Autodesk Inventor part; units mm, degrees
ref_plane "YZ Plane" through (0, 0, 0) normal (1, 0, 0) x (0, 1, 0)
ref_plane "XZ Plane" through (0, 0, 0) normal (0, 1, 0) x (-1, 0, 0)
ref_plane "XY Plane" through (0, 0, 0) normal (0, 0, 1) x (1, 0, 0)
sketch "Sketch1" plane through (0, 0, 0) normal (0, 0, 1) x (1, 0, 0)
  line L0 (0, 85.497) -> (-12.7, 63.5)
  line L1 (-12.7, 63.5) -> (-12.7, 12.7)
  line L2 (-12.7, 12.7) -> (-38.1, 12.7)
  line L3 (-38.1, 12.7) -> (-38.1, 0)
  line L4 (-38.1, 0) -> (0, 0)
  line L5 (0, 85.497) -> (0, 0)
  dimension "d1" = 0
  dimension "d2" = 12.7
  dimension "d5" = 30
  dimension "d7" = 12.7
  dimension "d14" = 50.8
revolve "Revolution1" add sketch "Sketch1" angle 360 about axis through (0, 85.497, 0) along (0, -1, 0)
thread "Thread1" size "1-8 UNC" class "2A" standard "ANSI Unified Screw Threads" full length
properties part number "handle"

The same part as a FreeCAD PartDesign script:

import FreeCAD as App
import Part
import Sketcher
from FreeCAD import Vector
Q = App.Units.Quantity

doc = App.newDocument("Part")
params = doc.addObject("Spreadsheet::Sheet", "Params")
for row, (alias, value) in enumerate([
    ("sketch1_height", "2 in"),
    ("sketch1_height2", "0.5 in"),
    ("sketch1_width", "1 in"),
    ("sketch1_length", "1 in"),
    ("revolution_angle", "360 deg"),
], start=1):
    params.set(f"A{row}", alias)
    params.set(f"B{row}", "=" + value)
    params.setAlias(f"B{row}", alias)

body = doc.addObject("PartDesign::Body", "Body")

sketch1 = body.newObject("Sketcher::SketchObject", "Sketch")
sketch1.AttachmentSupport = (doc.getObject("XY_Plane"), [""])
sketch1.MapMode = "FlatFace"
sketch1.addGeometry([
    Part.LineSegment(Vector(0, 0, 0), Vector(0, 85, 0)),
    Part.LineSegment(Vector(0, 85, 0), Vector(-13, 64, 0)),
    Part.LineSegment(Vector(-13, 64, 0), Vector(-13, 13, 0)),
    Part.LineSegment(Vector(-13, 13, 0), Vector(-38, 13, 0)),
    Part.LineSegment(Vector(-38, 13, 0), Vector(-38, 0, 0)),
    Part.LineSegment(Vector(-38, 0, 0), Vector(0, 0, 0)),
], False)
sketch1.addConstraint([
    Sketcher.Constraint("Coincident", 0, 2, 1, 1),
    Sketcher.Constraint("Coincident", 1, 2, 2, 1),
    Sketcher.Constraint("Coincident", 2, 2, 3, 1),
    Sketcher.Constraint("Coincident", 3, 2, 4, 1),
    Sketcher.Constraint("Coincident", 4, 2, 5, 1),
    Sketcher.Constraint("Coincident", 5, 2, 0, 1),
    Sketcher.Constraint("Vertical", 0),
    Sketcher.Constraint("Vertical", 2),
    Sketcher.Constraint("Horizontal", 3),
    Sketcher.Constraint("Vertical", 4),
    Sketcher.Constraint("Horizontal", 5),
    Sketcher.Constraint("Coincident", 5, 2, -1, 1),
    Sketcher.Constraint("DistanceY", 2, 2, 2, 1, Q("2 in")),
    Sketcher.Constraint("DistanceY", 4, 2, 4, 1, Q("0.5 in")),
    Sketcher.Constraint("DistanceX", 1, 2, -1, 1, Q("0.5 in")),
    Sketcher.Constraint("DistanceX", 3, 2, 3, 1, Q("1 in")),
    Sketcher.Constraint("Distance", 1, Q("1 in")),
])
sketch1.setExpression("Constraints[12]", "Params.sketch1_height")
sketch1.setExpression("Constraints[13]", "Params.sketch1_height2")
sketch1.setExpression("Constraints[15]", "Params.sketch1_width")
sketch1.setExpression("Constraints[16]", "Params.sketch1_length")
revolution = body.newObject("PartDesign::Revolution", "Revolution")
revolution.Profile = sketch1
revolution.ReferenceAxis = (sketch1, ["V_Axis"])
revolution.setExpression("Angle", "Params.revolution_angle")

doc.recompute()
